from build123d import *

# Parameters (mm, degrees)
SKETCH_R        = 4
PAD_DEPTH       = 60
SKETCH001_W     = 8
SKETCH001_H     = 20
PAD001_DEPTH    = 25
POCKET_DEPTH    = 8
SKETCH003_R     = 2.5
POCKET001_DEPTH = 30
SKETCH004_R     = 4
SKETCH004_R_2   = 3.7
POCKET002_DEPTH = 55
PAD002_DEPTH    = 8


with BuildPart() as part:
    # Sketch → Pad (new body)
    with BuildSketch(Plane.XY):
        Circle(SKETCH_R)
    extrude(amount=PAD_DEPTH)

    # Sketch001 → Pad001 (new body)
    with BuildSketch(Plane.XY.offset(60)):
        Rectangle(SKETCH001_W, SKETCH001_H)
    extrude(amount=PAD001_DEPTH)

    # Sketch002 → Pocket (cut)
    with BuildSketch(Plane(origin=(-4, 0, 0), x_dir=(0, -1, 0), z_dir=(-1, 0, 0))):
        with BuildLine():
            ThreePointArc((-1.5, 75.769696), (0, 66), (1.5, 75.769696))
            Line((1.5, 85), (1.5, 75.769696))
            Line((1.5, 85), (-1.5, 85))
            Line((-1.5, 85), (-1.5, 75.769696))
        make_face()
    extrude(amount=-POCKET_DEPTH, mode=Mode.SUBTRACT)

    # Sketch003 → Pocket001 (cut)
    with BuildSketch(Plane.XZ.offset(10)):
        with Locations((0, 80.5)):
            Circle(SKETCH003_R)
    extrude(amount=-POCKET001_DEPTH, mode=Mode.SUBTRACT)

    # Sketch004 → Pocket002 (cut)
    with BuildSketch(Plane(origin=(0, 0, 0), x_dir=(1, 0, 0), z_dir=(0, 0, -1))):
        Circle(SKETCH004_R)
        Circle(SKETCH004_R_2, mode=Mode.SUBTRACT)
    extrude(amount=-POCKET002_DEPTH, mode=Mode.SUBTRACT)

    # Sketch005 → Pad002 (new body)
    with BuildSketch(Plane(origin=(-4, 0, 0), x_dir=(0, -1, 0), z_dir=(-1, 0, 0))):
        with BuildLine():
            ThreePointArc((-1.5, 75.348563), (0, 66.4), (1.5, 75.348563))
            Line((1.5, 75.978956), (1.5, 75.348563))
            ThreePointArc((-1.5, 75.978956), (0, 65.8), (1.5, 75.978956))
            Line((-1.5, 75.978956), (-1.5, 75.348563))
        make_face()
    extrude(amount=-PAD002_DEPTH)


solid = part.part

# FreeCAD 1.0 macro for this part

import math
import FreeCAD as App
import Part
import Sketcher
Q = App.Units.Quantity


def add_polygon(sketch, points):
    """Adds a closed chain of lines whose ends are joined by coincident constraints."""
    first, n = sketch.GeometryCount, len(points)
    for a, b in zip(points, points[1:] + points[:1]):
        sketch.addGeometry(Part.LineSegment(App.Vector(*a, 0), App.Vector(*b, 0)), False)
    for i in range(n):
        sketch.addConstraint(Sketcher.Constraint("Coincident", first + i, 2, first + (i + 1) % n, 1))

doc = App.newDocument("Part")
body = doc.addObject("PartDesign::Body", "Body")

sketch1 = body.newObject("Sketcher::SketchObject", "Sketch")
sketch1.AttachmentSupport = (doc.getObject("XY_Plane"), [""])
sketch1.MapMode = "FlatFace"
sketch1.addGeometry(Part.Circle(App.Vector(0, 0, 0), App.Vector(0, 0, 1), 4), False)
sketch1.addConstraint(Sketcher.Constraint("Coincident", 0, 3, -1, 1))
sketch1.addConstraint(Sketcher.Constraint("Diameter", 0, Q("8 mm")))
pad1 = body.newObject("PartDesign::Pad", "Pad")
pad1.Profile = sketch1
pad1.Length = 60

sketch2 = body.newObject("Sketcher::SketchObject", "Sketch001")
sketch2.AttachmentSupport = (doc.getObject("XY_Plane"), [""])
sketch2.MapMode = "FlatFace"
sketch2.AttachmentOffset = App.Placement(App.Vector(0, 0, 60), App.Rotation())
add_polygon(sketch2, [(-4, 10), (-4, -10), (4, -10), (4, 10)])
sketch2.addConstraint(Sketcher.Constraint("Vertical", 0))
sketch2.addConstraint(Sketcher.Constraint("Horizontal", 1))
sketch2.addConstraint(Sketcher.Constraint("Vertical", 2))
sketch2.addConstraint(Sketcher.Constraint("Horizontal", 3))
sketch2.addConstraint(Sketcher.Constraint("Symmetric", 0, 2, 2, 2, -1, 1))
sketch2.addConstraint(Sketcher.Constraint("DistanceX", 1, 1, 1, 2, Q("8 mm")))
sketch2.addConstraint(Sketcher.Constraint("DistanceY", 0, 2, 0, 1, Q("20 mm")))
pad2 = body.newObject("PartDesign::Pad", "Pad001")
pad2.Profile = sketch2
pad2.Length = 25

sketch3 = body.newObject("Sketcher::SketchObject", "Sketch002")
sketch3.AttachmentSupport = (doc.getObject("YZ_Plane"), [""])
sketch3.MapMode = "FlatFace"
sketch3.AttachmentOffset = App.Placement(App.Vector(0, 0, -4), App.Rotation())
sketch3.addGeometry(Part.ArcOfCircle(Part.Circle(App.Vector(0, 71, 0), App.Vector(0, 0, 1), 5), math.radians(107), math.radians(433)), False)
sketch3.addGeometry(Part.LineSegment(App.Vector(-1.5, 75.8, 0), App.Vector(-1.5, 85, 0)), False)
sketch3.addGeometry(Part.LineSegment(App.Vector(-1.5, 85, 0), App.Vector(1.5, 85, 0)), False)
sketch3.addGeometry(Part.LineSegment(App.Vector(1.5, 85, 0), App.Vector(1.5, 75.8, 0)), False)
sketch3.addConstraint(Sketcher.Constraint("Coincident", 0, 1, 1, 1))
sketch3.addConstraint(Sketcher.Constraint("Coincident", 1, 2, 2, 1))
sketch3.addConstraint(Sketcher.Constraint("Coincident", 2, 2, 3, 1))
sketch3.addConstraint(Sketcher.Constraint("Coincident", 3, 2, 0, 2))
sketch3.addConstraint(Sketcher.Constraint("Vertical", 1))
sketch3.addConstraint(Sketcher.Constraint("Horizontal", 2))
sketch3.addConstraint(Sketcher.Constraint("Vertical", 3))
sketch3.addConstraint(Sketcher.Constraint("Symmetric", 0, 1, 3, 2, -2))
sketch3.addConstraint(Sketcher.Constraint("Radius", 0, Q("5 mm")))
sketch3.addConstraint(Sketcher.Constraint("DistanceX", 2, 1, 2, 2, Q("3 mm")))
sketch3.addConstraint(Sketcher.Constraint("DistanceY", -1, 1, 0, 3, Q("71 mm")))
sketch3.addConstraint(Sketcher.Constraint("DistanceY", -1, 1, 1, 2, Q("85 mm")))
pocket1 = body.newObject("PartDesign::Pocket", "Pocket")
pocket1.Profile = sketch3
pocket1.Length = 8
pocket1.Reversed = True

sketch4 = body.newObject("Sketcher::SketchObject", "Sketch003")
sketch4.AttachmentSupport = (doc.getObject("XZ_Plane"), [""])
sketch4.MapMode = "FlatFace"
sketch4.AttachmentOffset = App.Placement(App.Vector(0, 0, 10), App.Rotation())
sketch4.addGeometry(Part.Circle(App.Vector(0, 80.5, 0), App.Vector(0, 0, 1), 2.5), False)
sketch4.addConstraint(Sketcher.Constraint("PointOnObject", 0, 3, -2))
sketch4.addConstraint(Sketcher.Constraint("Diameter", 0, Q("5 mm")))
sketch4.addConstraint(Sketcher.Constraint("DistanceY", -1, 1, 0, 3, Q("80.5 mm")))
pocket2 = body.newObject("PartDesign::Pocket", "Pocket001")
pocket2.Profile = sketch4
pocket2.Length = 30

sketch5 = body.newObject("Sketcher::SketchObject", "Sketch004")
sketch5.AttachmentSupport = (doc.getObject("XY_Plane"), [""])
sketch5.MapMode = "FlatFace"
sketch5.addGeometry(Part.Circle(App.Vector(0, 0, 0), App.Vector(0, 0, 1), 4), False)
sketch5.addGeometry(Part.Circle(App.Vector(0, 0, 0), App.Vector(0, 0, 1), 3.7), False)
sketch5.addConstraint(Sketcher.Constraint("Coincident", 0, 3, -1, 1))
sketch5.addConstraint(Sketcher.Constraint("Coincident", 1, 3, -1, 1))
sketch5.addConstraint(Sketcher.Constraint("Diameter", 0, Q("8 mm")))
sketch5.addConstraint(Sketcher.Constraint("Diameter", 1, Q("7.4 mm")))
pocket3 = body.newObject("PartDesign::Pocket", "Pocket002")
pocket3.Profile = sketch5
pocket3.Length = 55
pocket3.Reversed = True

sketch6 = body.newObject("Sketcher::SketchObject", "Sketch005")
sketch6.AttachmentSupport = (doc.getObject("YZ_Plane"), [""])
sketch6.MapMode = "FlatFace"
sketch6.AttachmentOffset = App.Placement(App.Vector(0, 0, -4), App.Rotation())
sketch6.addGeometry(Part.ArcOfCircle(Part.Circle(App.Vector(0, 71, 0), App.Vector(0, 0, 1), 4.6), math.radians(109), math.radians(431)), False)
sketch6.addGeometry(Part.LineSegment(App.Vector(1.5, 75.3, 0), App.Vector(1.5, 76, 0)), False)
sketch6.addGeometry(Part.ArcOfCircle(Part.Circle(App.Vector(0, 71, 0), App.Vector(0, 0, 1), 5.2), math.radians(107), math.radians(433)), False)
sketch6.addGeometry(Part.LineSegment(App.Vector(-1.5, 76, 0), App.Vector(-1.5, 75.3, 0)), False)
sketch6.addConstraint(Sketcher.Constraint("Coincident", 0, 2, 1, 1))
sketch6.addConstraint(Sketcher.Constraint("Coincident", 1, 2, 2, 2))
sketch6.addConstraint(Sketcher.Constraint("Coincident", 2, 1, 3, 1))
sketch6.addConstraint(Sketcher.Constraint("Coincident", 3, 2, 0, 1))
sketch6.addConstraint(Sketcher.Constraint("Vertical", 1))
sketch6.addConstraint(Sketcher.Constraint("Vertical", 3))
sketch6.addConstraint(Sketcher.Constraint("Coincident", 2, 3, 0, 3))
sketch6.addConstraint(Sketcher.Constraint("Symmetric", 1, 2, 2, 1, -2))
sketch6.addConstraint(Sketcher.Constraint("Radius", 0, Q("4.6 mm")))
sketch6.addConstraint(Sketcher.Constraint("Radius", 2, Q("5.2 mm")))
sketch6.addConstraint(Sketcher.Constraint("DistanceY", -1, 1, 0, 3, Q("71 mm")))
sketch6.addConstraint(Sketcher.Constraint("DistanceX", 2, 1, 1, 2, Q("3 mm")))
pad3 = body.newObject("PartDesign::Pad", "Pad002")
pad3.Profile = sketch6
pad3.Length = 8

doc.recompute()
